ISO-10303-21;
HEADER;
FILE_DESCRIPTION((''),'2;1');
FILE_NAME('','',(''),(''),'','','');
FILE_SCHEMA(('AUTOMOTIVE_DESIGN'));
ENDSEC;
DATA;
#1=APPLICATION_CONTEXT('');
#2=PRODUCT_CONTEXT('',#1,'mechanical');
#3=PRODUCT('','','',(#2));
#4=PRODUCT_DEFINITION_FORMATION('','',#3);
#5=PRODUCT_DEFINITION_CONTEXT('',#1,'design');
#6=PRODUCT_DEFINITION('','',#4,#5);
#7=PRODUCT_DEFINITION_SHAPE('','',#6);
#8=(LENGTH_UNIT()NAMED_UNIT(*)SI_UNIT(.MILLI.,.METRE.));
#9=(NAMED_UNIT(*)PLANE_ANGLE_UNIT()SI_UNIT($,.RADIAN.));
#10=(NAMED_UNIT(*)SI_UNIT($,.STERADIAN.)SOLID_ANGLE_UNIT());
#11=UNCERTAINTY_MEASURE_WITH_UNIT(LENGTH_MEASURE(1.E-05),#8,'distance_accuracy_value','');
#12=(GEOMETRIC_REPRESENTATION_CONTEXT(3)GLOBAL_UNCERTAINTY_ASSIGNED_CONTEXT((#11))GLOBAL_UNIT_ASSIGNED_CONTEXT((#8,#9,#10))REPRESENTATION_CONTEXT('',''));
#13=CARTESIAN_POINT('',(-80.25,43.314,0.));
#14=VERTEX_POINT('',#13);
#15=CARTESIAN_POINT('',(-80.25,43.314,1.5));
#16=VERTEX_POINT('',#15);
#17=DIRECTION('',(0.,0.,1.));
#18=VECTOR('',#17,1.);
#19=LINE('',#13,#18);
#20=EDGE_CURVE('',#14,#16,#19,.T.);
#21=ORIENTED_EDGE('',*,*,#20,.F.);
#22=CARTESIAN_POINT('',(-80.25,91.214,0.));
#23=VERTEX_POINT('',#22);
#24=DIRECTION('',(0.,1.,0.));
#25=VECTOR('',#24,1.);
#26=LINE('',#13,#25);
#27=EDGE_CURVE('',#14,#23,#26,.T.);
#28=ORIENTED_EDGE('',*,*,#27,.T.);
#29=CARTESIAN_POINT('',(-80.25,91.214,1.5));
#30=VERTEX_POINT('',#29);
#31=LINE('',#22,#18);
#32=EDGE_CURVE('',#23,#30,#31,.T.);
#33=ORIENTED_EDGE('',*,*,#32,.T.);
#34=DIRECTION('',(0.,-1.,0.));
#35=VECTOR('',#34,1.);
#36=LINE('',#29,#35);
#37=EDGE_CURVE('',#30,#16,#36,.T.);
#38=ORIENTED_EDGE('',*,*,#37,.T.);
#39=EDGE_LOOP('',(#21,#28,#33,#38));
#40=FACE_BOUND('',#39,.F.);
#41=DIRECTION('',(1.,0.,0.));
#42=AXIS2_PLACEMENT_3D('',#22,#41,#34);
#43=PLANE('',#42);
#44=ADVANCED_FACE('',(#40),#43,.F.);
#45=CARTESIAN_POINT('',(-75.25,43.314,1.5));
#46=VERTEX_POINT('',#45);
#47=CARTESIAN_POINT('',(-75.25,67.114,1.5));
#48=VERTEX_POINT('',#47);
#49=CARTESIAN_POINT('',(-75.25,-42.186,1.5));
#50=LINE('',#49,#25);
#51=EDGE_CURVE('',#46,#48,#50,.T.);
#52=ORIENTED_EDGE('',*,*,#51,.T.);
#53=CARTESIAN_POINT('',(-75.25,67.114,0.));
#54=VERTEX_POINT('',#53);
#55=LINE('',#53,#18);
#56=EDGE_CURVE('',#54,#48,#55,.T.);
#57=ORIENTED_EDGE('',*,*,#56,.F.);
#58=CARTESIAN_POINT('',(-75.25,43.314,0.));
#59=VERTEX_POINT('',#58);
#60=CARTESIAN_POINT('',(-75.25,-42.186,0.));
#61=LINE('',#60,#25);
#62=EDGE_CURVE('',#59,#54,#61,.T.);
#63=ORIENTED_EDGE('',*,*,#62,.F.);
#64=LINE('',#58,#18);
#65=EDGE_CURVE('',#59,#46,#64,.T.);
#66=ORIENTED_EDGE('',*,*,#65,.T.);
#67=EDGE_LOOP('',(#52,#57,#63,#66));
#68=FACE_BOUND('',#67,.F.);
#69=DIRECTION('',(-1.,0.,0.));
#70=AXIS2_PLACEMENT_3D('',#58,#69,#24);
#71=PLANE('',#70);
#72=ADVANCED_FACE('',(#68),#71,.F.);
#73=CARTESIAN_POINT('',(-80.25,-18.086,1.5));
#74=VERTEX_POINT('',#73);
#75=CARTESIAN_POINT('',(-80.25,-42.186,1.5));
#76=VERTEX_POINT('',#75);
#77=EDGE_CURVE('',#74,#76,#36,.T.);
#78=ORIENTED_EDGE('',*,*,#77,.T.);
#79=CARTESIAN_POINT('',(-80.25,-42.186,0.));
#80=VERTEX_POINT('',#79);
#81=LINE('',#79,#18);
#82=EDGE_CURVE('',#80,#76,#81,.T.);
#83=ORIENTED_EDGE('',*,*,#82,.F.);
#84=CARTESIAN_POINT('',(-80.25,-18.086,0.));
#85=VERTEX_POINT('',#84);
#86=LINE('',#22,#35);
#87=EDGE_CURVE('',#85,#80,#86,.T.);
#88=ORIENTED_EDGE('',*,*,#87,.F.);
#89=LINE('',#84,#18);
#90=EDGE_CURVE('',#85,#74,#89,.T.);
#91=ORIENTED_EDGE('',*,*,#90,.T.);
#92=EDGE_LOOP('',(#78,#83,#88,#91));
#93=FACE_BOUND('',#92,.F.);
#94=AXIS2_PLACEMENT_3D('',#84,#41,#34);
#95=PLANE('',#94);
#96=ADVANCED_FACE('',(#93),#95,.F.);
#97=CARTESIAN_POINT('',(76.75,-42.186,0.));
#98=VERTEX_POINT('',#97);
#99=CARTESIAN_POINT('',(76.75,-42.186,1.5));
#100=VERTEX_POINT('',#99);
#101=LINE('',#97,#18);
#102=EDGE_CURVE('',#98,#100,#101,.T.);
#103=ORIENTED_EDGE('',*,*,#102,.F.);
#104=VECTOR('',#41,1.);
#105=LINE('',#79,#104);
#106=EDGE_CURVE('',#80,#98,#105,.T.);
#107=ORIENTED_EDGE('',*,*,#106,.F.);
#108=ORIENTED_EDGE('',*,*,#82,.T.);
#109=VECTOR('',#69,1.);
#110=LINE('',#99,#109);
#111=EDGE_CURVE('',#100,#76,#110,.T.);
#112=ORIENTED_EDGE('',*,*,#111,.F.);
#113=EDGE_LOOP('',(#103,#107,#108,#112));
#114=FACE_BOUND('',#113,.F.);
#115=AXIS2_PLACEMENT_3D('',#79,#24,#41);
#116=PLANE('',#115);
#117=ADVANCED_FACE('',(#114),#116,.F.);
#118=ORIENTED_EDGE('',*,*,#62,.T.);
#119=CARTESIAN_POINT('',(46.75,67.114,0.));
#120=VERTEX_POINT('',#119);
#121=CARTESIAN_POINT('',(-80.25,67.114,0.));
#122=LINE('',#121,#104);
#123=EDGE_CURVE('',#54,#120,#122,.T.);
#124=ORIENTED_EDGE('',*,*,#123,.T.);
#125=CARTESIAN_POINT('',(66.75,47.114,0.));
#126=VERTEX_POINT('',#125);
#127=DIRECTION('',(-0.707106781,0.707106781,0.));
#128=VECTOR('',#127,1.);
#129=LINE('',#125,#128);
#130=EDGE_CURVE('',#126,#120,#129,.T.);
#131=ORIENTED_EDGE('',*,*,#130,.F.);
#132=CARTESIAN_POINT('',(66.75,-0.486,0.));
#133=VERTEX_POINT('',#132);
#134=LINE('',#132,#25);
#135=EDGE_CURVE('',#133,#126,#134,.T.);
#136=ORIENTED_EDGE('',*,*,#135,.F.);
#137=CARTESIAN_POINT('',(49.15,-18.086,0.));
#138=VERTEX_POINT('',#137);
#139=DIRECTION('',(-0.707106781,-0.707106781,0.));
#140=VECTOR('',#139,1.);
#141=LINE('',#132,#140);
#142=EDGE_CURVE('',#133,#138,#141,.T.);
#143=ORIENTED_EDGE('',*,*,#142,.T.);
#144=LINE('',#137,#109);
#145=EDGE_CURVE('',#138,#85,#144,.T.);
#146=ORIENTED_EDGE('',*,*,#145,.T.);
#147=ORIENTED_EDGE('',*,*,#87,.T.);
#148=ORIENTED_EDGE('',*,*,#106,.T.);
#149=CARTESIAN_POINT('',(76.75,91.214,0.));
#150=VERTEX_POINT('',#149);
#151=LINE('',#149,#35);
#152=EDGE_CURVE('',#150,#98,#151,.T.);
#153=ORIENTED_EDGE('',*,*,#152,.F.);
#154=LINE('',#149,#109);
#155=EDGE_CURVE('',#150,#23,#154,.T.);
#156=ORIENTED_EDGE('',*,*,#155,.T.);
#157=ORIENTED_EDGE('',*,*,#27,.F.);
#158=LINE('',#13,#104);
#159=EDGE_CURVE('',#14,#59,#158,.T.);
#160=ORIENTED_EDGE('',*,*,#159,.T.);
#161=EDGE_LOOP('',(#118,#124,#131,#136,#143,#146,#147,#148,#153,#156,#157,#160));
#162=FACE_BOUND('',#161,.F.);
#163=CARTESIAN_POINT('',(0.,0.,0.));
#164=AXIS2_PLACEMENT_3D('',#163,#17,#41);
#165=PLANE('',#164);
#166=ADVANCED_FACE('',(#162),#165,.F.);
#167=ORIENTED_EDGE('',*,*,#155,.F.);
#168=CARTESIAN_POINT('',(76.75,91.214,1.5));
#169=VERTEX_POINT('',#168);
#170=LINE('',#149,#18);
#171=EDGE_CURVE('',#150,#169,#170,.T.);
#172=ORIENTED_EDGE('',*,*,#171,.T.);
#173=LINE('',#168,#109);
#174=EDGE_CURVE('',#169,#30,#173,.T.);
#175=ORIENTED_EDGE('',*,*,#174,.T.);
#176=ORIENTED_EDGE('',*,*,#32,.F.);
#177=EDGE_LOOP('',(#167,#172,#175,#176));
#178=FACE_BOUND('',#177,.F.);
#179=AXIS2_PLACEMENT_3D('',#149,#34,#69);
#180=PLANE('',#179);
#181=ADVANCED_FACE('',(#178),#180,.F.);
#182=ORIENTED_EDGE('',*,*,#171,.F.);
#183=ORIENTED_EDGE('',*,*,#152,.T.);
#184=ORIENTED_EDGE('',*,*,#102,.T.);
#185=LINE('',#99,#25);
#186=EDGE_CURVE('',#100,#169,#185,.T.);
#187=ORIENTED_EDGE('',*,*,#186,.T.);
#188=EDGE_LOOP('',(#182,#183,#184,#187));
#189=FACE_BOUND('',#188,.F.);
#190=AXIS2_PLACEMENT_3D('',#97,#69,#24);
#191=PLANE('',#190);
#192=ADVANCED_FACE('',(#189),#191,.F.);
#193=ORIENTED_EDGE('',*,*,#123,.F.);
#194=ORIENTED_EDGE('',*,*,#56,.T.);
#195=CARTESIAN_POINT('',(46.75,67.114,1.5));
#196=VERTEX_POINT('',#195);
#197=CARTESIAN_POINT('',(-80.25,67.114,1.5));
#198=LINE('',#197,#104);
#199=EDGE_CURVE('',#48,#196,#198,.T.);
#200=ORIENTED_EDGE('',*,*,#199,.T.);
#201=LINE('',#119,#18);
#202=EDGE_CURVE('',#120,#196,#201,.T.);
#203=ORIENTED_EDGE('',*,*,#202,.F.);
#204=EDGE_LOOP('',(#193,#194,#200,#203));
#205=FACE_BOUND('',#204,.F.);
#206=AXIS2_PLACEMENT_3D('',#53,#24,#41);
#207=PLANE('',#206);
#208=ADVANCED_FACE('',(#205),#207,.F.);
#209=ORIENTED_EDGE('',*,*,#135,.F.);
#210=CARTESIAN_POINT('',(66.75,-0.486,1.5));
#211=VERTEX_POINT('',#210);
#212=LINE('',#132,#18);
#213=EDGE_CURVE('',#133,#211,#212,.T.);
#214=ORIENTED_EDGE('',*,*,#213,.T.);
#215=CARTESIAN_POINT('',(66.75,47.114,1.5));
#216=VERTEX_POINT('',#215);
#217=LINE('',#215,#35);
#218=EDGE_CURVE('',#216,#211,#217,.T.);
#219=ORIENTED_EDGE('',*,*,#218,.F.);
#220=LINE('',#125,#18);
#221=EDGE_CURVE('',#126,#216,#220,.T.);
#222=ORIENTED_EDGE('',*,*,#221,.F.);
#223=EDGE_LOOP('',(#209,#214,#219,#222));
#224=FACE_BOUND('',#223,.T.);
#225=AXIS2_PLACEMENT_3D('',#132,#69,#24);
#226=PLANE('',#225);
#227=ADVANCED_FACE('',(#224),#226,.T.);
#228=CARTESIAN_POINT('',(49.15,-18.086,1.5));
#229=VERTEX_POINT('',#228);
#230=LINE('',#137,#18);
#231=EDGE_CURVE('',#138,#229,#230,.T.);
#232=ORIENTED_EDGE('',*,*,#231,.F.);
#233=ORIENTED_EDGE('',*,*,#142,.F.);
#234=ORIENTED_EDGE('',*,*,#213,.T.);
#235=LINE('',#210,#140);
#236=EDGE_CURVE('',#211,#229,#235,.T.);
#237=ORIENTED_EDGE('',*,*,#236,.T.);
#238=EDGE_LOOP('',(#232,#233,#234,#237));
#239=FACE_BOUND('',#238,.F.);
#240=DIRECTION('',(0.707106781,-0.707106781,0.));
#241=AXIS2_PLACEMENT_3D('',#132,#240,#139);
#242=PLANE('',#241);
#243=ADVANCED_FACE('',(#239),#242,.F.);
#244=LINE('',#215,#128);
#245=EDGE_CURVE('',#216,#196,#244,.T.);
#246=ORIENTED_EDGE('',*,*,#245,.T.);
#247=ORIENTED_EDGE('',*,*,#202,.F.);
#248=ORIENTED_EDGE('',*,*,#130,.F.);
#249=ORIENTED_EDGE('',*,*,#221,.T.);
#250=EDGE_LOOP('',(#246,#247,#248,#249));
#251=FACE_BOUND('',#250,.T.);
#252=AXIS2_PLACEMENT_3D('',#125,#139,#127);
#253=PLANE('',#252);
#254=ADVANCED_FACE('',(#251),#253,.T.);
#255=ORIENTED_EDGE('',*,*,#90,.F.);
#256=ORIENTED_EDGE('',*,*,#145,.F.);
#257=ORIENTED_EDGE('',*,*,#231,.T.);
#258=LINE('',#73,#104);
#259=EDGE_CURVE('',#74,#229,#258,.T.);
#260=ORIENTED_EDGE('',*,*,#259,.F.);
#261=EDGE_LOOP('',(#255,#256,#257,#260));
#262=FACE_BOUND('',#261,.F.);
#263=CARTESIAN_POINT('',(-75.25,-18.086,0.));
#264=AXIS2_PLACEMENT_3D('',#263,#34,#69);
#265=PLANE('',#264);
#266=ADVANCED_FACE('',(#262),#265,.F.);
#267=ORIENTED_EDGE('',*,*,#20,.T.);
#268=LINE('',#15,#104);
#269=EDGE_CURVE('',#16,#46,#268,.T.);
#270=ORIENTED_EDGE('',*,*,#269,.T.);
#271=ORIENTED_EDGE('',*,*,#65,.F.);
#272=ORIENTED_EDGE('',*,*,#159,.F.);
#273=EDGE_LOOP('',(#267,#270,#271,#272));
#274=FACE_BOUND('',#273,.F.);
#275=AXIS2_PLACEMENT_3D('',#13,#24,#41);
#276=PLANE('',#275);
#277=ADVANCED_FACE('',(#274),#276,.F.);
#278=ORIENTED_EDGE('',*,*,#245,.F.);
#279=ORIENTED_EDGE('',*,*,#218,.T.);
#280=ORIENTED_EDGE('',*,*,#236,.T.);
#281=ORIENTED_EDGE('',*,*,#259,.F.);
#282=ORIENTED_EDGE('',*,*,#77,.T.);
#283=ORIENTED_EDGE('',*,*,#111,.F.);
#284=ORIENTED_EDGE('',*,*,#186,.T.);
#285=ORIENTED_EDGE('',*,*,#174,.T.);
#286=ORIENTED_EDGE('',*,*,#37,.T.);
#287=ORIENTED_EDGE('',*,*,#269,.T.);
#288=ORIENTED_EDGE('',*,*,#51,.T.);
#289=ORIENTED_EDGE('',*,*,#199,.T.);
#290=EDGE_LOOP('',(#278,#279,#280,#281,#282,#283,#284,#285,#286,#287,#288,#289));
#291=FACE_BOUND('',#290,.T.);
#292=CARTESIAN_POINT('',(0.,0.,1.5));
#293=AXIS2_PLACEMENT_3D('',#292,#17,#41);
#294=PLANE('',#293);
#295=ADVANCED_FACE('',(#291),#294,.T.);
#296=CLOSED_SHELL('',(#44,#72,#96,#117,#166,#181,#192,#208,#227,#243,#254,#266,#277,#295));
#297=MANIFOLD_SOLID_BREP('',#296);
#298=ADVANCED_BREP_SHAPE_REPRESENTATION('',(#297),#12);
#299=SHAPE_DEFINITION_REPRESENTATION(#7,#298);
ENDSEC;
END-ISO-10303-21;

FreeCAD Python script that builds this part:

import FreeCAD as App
import Part
import Sketcher
from FreeCAD import Vector
Q = App.Units.Quantity

doc = App.newDocument("Part")
body = doc.addObject("PartDesign::Body", "Body")

# Sketch on XY plane
sketch1 = doc.addObject("Sketcher::SketchObject", "Sketch")
body.addObject(sketch1)
sketch1.AttachmentSupport = (doc.XY_Plane, [""])
sketch1.MapMode = "FlatFace"
sketch1.addGeometry([
    Part.LineSegment(Vector(-80, -18, 0), Vector(-80, -42, 0)),  # 0
    Part.LineSegment(Vector(-80, -42, 0), Vector(77, -42, 0)),  # 1
    Part.LineSegment(Vector(77, -42, 0), Vector(77, 91, 0)),  # 2
    Part.LineSegment(Vector(77, 91, 0), Vector(-80, 91, 0)),  # 3
    Part.LineSegment(Vector(-80, 91, 0), Vector(-80, 43, 0)),  # 4
    Part.LineSegment(Vector(-80, 43, 0), Vector(-75, 43, 0)),  # 5
    Part.LineSegment(Vector(-75, 43, 0), Vector(-75, 67, 0)),  # 6
    Part.LineSegment(Vector(-75, 67, 0), Vector(47, 67, 0)),  # 7
    Part.LineSegment(Vector(47, 67, 0), Vector(67, 47, 0)),  # 8
    Part.LineSegment(Vector(67, 47, 0), Vector(67, 0, 0)),  # 9
    Part.LineSegment(Vector(67, 0, 0), Vector(49, -18, 0)),  # 10
    Part.LineSegment(Vector(49, -18, 0), Vector(-80, -18, 0)),  # 11
], False)
sketch1.addConstraint([
    Sketcher.Constraint("Coincident", 0, 2, 1, 1),
    Sketcher.Constraint("Coincident", 1, 2, 2, 1),
    Sketcher.Constraint("Coincident", 2, 2, 3, 1),
    Sketcher.Constraint("Coincident", 3, 2, 4, 1),
    Sketcher.Constraint("Coincident", 4, 2, 5, 1),
    Sketcher.Constraint("Coincident", 5, 2, 6, 1),
    Sketcher.Constraint("Coincident", 6, 2, 7, 1),
    Sketcher.Constraint("Coincident", 7, 2, 8, 1),
    Sketcher.Constraint("Coincident", 8, 2, 9, 1),
    Sketcher.Constraint("Coincident", 9, 2, 10, 1),
    Sketcher.Constraint("Coincident", 10, 2, 11, 1),
    Sketcher.Constraint("Coincident", 11, 2, 0, 1),
    Sketcher.Constraint("Vertical", 0),
    Sketcher.Constraint("Horizontal", 1),
    Sketcher.Constraint("Vertical", 2),
    Sketcher.Constraint("Horizontal", 3),
    Sketcher.Constraint("Vertical", 4),
    Sketcher.Constraint("Horizontal", 5),
    Sketcher.Constraint("Vertical", 6),
    Sketcher.Constraint("Horizontal", 7),
    Sketcher.Constraint("Vertical", 9),
    Sketcher.Constraint("Horizontal", 11),
    Sketcher.Constraint("Perpendicular", 8, 10),
    Sketcher.Constraint("Vertical", 0, 2, 3, 2),
    Sketcher.Constraint("DistanceX", 1, 1, 1, 2, 157.0),
    Sketcher.Constraint("DistanceX", 5, 1, 5, 2, 5.0),
    Sketcher.Constraint("Angle", 10, Q("-135 deg")),
    Sketcher.Constraint("DistanceY", 0, 2, 0, 1, 24.1),
    Sketcher.Constraint("DistanceY", 2, 1, 2, 2, 133.4),
    Sketcher.Constraint("DistanceX", 7, 2, 8, 2, 20.0),
    Sketcher.Constraint("DistanceX", 8, 2, 2, 2, 10.0),
    Sketcher.Constraint("DistanceY", 6, 2, 3, 2, 24.1),
    Sketcher.Constraint("DistanceX", 0, 2, -1, 1, 80.25),
    Sketcher.Constraint("DistanceX", 11, 2, 11, 1, 129.4),
    Sketcher.Constraint("DistanceY", 4, 2, 4, 1, 47.9),
    Sketcher.Constraint("DistanceY", 10, 2, -1, 1, 18.086),
])
pad1 = doc.addObject("PartDesign::Pad", "Pad")
body.addObject(pad1)
pad1.Profile = sketch1
pad1.Length = 1.5

doc.recompute()
